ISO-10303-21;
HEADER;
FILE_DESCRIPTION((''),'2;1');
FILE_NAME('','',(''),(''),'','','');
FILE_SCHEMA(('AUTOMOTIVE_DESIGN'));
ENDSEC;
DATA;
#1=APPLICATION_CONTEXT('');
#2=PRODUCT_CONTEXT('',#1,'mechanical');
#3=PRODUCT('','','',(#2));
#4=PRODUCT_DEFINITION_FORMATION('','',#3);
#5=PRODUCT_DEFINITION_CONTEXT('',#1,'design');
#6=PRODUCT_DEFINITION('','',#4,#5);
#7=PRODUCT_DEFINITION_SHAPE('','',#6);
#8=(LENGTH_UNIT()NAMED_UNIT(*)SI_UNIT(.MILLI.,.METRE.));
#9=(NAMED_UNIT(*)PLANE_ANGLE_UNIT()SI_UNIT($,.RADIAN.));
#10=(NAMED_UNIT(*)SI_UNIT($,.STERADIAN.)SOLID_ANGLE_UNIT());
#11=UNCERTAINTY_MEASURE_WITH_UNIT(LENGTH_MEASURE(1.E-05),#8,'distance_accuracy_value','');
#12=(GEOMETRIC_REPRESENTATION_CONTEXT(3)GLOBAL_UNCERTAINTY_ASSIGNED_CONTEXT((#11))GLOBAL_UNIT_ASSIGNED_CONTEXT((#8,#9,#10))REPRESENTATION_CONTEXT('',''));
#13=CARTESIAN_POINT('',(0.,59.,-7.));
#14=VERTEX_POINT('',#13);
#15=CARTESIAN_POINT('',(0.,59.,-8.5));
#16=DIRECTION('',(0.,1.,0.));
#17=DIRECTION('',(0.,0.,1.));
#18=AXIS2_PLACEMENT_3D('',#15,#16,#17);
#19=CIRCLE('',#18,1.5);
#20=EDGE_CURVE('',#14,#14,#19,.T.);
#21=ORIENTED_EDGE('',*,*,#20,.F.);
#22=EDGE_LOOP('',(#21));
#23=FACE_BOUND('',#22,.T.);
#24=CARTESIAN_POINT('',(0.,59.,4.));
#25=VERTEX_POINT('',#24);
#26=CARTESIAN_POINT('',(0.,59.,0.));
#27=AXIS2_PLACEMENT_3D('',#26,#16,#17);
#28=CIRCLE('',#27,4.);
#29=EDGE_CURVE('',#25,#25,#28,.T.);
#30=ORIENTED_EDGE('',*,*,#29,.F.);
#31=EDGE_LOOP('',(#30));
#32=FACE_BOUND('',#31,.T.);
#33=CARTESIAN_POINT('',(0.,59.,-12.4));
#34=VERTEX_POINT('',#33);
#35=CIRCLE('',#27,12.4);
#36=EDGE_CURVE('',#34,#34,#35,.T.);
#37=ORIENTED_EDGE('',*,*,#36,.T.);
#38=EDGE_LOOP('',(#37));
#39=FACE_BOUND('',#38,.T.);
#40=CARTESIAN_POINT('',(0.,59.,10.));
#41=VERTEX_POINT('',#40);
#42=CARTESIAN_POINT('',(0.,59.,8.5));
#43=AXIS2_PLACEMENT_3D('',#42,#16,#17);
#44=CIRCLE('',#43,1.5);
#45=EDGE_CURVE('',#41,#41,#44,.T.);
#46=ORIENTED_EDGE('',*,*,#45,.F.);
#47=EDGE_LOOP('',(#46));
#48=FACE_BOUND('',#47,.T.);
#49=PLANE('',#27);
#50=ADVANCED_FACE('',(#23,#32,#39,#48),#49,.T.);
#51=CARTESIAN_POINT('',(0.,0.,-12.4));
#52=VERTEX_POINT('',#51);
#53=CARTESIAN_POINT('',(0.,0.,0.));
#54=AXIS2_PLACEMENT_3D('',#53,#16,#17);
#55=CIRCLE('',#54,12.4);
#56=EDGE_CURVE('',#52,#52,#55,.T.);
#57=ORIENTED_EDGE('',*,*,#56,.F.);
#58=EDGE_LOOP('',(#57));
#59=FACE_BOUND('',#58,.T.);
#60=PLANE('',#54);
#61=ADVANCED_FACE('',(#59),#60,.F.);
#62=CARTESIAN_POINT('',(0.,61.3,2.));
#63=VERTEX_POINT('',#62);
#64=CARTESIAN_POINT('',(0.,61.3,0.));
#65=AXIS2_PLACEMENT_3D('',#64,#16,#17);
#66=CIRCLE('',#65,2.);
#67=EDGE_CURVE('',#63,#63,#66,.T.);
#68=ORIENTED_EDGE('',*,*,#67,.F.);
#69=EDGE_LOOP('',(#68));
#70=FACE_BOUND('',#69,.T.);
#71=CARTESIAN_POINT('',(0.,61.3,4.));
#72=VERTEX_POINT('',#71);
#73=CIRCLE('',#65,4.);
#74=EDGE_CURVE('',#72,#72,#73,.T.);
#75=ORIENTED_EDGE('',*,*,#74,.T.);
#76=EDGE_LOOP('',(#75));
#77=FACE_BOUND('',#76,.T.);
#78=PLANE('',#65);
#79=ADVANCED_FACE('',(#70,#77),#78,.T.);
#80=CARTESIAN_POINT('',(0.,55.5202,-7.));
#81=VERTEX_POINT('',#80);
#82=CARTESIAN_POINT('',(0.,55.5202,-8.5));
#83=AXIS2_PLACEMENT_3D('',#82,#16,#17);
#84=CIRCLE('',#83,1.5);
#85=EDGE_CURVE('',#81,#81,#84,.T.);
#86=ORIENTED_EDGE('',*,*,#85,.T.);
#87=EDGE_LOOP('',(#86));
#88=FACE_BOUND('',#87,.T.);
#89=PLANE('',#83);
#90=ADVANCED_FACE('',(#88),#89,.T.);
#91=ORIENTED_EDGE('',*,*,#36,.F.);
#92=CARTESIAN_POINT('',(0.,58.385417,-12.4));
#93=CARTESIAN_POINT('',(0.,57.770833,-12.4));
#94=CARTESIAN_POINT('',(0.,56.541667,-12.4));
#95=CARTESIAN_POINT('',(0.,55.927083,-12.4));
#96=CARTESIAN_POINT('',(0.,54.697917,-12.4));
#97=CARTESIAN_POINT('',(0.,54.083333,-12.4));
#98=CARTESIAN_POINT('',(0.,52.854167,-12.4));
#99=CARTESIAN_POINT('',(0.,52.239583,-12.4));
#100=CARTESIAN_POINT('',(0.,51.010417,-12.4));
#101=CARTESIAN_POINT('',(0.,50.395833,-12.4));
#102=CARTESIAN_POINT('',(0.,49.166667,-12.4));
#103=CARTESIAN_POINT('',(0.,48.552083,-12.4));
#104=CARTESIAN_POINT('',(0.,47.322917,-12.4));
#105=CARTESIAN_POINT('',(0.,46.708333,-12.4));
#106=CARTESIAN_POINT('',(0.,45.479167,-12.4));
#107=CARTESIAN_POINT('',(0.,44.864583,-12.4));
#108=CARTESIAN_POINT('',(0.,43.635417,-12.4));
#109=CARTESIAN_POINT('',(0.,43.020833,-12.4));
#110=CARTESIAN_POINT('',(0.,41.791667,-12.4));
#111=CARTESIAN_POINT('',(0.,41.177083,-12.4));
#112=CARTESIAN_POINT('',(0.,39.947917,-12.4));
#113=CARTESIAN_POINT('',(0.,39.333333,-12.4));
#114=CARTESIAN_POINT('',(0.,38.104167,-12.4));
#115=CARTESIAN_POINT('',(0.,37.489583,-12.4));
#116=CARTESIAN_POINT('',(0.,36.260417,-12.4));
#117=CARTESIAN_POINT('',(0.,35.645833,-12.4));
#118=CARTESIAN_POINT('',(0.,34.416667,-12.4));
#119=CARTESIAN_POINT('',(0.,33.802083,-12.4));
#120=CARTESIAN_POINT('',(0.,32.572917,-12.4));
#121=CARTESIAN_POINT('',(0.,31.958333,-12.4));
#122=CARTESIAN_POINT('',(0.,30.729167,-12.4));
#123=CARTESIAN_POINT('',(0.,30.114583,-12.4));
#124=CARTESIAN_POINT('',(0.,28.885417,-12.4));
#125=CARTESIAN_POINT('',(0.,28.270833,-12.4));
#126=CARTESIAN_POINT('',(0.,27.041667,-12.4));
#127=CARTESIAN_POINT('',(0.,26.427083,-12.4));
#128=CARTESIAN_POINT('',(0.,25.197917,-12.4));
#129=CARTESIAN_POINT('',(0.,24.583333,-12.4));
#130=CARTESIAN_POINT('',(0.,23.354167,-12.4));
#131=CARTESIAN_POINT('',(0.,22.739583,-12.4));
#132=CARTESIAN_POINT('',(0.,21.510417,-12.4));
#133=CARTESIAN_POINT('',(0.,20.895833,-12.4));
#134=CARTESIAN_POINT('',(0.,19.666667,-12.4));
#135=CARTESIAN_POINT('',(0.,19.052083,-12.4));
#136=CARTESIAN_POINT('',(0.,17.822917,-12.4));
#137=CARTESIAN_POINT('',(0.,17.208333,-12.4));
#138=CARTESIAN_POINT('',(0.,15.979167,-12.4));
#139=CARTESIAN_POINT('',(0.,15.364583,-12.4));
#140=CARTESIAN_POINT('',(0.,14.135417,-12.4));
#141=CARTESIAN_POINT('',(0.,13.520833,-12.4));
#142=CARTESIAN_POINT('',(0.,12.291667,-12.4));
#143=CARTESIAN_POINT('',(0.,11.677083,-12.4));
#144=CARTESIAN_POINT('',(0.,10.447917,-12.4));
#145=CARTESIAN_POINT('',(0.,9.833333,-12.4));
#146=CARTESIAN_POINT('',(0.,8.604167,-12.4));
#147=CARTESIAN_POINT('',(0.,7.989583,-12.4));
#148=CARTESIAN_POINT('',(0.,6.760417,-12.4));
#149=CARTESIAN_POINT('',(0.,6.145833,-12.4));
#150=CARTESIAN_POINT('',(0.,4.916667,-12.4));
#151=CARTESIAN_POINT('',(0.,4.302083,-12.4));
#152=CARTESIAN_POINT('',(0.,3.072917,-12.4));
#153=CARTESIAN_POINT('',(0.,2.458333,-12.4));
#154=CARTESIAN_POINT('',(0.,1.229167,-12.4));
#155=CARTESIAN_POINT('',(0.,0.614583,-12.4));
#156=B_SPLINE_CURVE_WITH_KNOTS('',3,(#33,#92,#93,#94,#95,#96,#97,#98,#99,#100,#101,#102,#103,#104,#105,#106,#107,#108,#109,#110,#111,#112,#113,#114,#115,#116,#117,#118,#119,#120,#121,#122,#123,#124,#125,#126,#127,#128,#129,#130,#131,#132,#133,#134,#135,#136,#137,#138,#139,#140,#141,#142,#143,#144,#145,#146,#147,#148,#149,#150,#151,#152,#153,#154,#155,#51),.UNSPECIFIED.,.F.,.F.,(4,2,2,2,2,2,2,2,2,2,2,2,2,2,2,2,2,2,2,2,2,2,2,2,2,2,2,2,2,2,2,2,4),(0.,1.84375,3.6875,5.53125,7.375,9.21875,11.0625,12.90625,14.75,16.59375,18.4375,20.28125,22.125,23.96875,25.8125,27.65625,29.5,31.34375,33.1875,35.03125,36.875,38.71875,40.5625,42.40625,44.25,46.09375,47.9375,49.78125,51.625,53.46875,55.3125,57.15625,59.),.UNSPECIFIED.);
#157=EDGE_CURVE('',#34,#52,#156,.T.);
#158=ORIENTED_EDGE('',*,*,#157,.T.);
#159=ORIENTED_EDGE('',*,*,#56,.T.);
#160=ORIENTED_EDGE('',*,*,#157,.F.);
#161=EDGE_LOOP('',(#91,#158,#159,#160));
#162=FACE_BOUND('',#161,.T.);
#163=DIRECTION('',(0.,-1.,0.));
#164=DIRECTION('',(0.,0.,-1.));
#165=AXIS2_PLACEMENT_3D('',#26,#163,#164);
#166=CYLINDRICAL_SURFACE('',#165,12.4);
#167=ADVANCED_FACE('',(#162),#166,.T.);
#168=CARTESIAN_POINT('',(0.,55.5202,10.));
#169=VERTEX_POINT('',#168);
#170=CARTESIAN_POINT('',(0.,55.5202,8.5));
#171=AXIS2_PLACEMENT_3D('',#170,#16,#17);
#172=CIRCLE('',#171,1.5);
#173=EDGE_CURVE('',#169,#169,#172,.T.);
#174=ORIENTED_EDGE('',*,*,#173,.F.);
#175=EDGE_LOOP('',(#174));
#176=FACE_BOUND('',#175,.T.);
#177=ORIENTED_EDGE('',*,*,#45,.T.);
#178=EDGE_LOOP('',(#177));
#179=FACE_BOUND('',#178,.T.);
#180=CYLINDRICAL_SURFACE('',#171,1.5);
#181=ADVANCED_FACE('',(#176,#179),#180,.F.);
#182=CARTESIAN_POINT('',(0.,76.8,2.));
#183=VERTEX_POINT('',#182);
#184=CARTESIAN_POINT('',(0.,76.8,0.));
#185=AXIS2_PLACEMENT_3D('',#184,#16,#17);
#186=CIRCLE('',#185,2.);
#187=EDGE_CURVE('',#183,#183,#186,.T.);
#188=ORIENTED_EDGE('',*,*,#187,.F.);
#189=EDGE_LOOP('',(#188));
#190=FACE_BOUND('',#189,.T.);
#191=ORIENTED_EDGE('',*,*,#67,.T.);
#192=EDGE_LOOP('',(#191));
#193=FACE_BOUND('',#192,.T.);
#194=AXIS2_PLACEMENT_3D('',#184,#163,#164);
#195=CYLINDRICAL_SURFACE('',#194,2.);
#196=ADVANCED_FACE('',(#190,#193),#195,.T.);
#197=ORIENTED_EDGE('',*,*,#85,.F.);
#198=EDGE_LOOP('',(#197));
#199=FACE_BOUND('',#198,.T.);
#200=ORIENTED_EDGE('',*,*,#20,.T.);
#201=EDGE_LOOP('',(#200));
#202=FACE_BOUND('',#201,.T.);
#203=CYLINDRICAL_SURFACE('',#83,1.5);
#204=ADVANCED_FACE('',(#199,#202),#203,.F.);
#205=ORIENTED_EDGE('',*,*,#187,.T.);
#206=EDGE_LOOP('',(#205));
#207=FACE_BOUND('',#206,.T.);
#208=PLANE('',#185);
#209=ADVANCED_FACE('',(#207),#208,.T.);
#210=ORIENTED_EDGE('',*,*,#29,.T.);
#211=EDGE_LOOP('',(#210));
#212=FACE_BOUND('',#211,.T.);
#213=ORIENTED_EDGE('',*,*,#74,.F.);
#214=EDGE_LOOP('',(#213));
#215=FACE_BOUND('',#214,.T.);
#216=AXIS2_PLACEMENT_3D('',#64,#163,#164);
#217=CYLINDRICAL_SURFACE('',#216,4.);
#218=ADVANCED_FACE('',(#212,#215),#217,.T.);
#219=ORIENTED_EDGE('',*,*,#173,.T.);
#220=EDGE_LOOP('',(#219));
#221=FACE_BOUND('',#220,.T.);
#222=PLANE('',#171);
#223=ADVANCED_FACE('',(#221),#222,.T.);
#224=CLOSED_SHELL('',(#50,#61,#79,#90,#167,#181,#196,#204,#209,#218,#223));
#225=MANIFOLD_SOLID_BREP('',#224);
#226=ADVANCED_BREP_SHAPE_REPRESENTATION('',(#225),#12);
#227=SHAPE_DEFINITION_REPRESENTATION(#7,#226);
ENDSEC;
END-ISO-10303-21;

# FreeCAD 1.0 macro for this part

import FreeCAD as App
import Part
import Sketcher

doc = App.newDocument("Part")
params = doc.addObject("Spreadsheet::Sheet", "Params")
for row, (alias, value) in enumerate([
    ("sketch1_diameter", "24.8 mm"),
    ("pad1_length", "59 mm"),
    ("sketch2_diameter", "3 mm"),
    ("pocket1_length", "3.4798 mm"),
    ("sketch3_diameter", "8 mm"),
    ("pad2_length", "2.3 mm"),
    ("sketch4_diameter", "4 mm"),
    ("pad3_length", "15.5 mm"),
], start=1):
    params.set(f"A{row}", alias)
    params.set(f"B{row}", "=" + value)
    params.setAlias(f"B{row}", alias)

body = doc.addObject("PartDesign::Body", "Body")

sketch1 = doc.addObject("Sketcher::SketchObject", "Sketch")
body.addObject(sketch1)
sketch1.AttachmentSupport = (doc.XZ_Plane, [""])
sketch1.MapMode = "FlatFace"
sketch1.addGeometry(Part.Circle(App.Vector(0, 0, 0), App.Vector(0, 0, 1), 12.4), False)
sketch1.addConstraint([
    Sketcher.Constraint("Coincident", 0, 3, -1, 1),
    Sketcher.Constraint("Diameter", 0, 24.8),
])
sketch1.setExpression("Constraints[1]", "Params.sketch1_diameter")
pad1 = doc.addObject("PartDesign::Pad", "Pad")
body.addObject(pad1)
pad1.Profile = sketch1
pad1.setExpression("Length", "Params.pad1_length")
pad1.Reversed = True

sketch2 = doc.addObject("Sketcher::SketchObject", "Sketch001")
body.addObject(sketch2)
sketch2.AttachmentSupport = (doc.XZ_Plane, [""])
sketch2.MapMode = "FlatFace"
sketch2.AttachmentOffset = App.Placement(App.Vector(0, 0, -59), App.Rotation())
sketch2.addGeometry([
    Part.Circle(App.Vector(0, -8.5, 0), App.Vector(0, 0, 1), 1.5),
    Part.Circle(App.Vector(0, 8.5, 0), App.Vector(0, 0, 1), 1.5),
], False)
sketch2.addConstraint([
    Sketcher.Constraint("Equal", 0, 1),
    Sketcher.Constraint("Symmetric", 0, 3, 1, 3, -1, 1),
    Sketcher.Constraint("PointOnObject", 0, 3, -2),
    Sketcher.Constraint("Diameter", 0, 3.0),
    Sketcher.Constraint("DistanceY", 0, 3, 1, 3, 17.0),
])
sketch2.setExpression("Constraints[3]", "Params.sketch2_diameter")
pocket1 = doc.addObject("PartDesign::Pocket", "Pocket")
body.addObject(pocket1)
pocket1.Profile = sketch2
pocket1.setExpression("Length", "Params.pocket1_length")
pocket1.Reversed = True

sketch3 = doc.addObject("Sketcher::SketchObject", "Sketch002")
body.addObject(sketch3)
sketch3.AttachmentSupport = (doc.XZ_Plane, [""])
sketch3.MapMode = "FlatFace"
sketch3.AttachmentOffset = App.Placement(App.Vector(0, 0, -59), App.Rotation())
sketch3.addGeometry(Part.Circle(App.Vector(0, 0, 0), App.Vector(0, 0, 1), 4), False)
sketch3.addConstraint([
    Sketcher.Constraint("Coincident", 0, 3, -1, 1),
    Sketcher.Constraint("Diameter", 0, 8.0),
])
sketch3.setExpression("Constraints[1]", "Params.sketch3_diameter")
pad2 = doc.addObject("PartDesign::Pad", "Pad001")
body.addObject(pad2)
pad2.Profile = sketch3
pad2.setExpression("Length", "Params.pad2_length")
pad2.Reversed = True

sketch4 = doc.addObject("Sketcher::SketchObject", "Sketch003")
body.addObject(sketch4)
sketch4.AttachmentSupport = (doc.XZ_Plane, [""])
sketch4.MapMode = "FlatFace"
sketch4.AttachmentOffset = App.Placement(App.Vector(0, 0, -61.3), App.Rotation())
sketch4.addGeometry(Part.Circle(App.Vector(0, 0, 0), App.Vector(0, 0, 1), 2), False)
sketch4.addConstraint([
    Sketcher.Constraint("Coincident", 0, 3, -1, 1),
    Sketcher.Constraint("Diameter", 0, 4.0),
])
sketch4.setExpression("Constraints[1]", "Params.sketch4_diameter")
pad3 = doc.addObject("PartDesign::Pad", "Pad002")
body.addObject(pad3)
pad3.Profile = sketch4
pad3.setExpression("Length", "Params.pad3_length")
pad3.Reversed = True

doc.recompute()
